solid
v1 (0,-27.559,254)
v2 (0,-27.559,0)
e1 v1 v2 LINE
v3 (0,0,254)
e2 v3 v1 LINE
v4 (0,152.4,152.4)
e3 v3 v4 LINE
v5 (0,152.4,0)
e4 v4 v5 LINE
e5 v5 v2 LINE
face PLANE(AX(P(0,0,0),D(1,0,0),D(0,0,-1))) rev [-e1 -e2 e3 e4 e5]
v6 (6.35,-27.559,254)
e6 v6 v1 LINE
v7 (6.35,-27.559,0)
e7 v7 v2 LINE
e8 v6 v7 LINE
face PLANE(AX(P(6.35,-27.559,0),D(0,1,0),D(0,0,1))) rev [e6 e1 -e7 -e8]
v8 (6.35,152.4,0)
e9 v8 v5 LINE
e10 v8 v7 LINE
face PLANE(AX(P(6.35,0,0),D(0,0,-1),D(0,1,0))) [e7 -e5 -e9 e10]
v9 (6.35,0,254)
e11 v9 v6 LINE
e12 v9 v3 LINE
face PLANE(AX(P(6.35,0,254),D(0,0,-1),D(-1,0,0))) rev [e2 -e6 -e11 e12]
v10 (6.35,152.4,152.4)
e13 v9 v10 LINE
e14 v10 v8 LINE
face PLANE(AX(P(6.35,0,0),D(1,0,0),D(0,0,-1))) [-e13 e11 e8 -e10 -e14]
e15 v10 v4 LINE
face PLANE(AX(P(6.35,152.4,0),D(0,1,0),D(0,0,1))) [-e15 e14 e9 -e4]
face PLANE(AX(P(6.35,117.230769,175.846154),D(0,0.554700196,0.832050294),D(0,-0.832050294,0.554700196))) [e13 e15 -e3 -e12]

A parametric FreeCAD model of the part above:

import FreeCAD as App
import Part
import Sketcher
from FreeCAD import Vector
Q = App.Units.Quantity

doc = App.newDocument("Part")
body = doc.addObject("PartDesign::Body", "Body")

sketch1 = doc.addObject("Sketcher::SketchObject", "Sketch")
body.addObject(sketch1)
sketch1.AttachmentSupport = (doc.YZ_Plane, [""])
sketch1.MapMode = "FlatFace"
sketch1.addGeometry([
    Part.LineSegment(Vector(-27.559, 0, 0), Vector(152.4, 0, 0)),
    Part.LineSegment(Vector(152.4, 0, 0), Vector(152.4, 152.4, 0)),
    Part.LineSegment(Vector(152.4, 152.4, 0), Vector(0, 254, 0)),
    Part.LineSegment(Vector(0, 254, 0), Vector(-27.559, 254, 0)),
    Part.LineSegment(Vector(-27.559, 254, 0), Vector(-27.559, 0, 0)),
], False)
sketch1.addConstraint([
    Sketcher.Constraint("Coincident", 0, 2, 1, 1),
    Sketcher.Constraint("Coincident", 1, 2, 2, 1),
    Sketcher.Constraint("Coincident", 2, 2, 3, 1),
    Sketcher.Constraint("Coincident", 3, 2, 4, 1),
    Sketcher.Constraint("Coincident", 4, 2, 0, 1),
    Sketcher.Constraint("Horizontal", 0),
    Sketcher.Constraint("Vertical", 1),
    Sketcher.Constraint("Horizontal", 3),
    Sketcher.Constraint("Vertical", 4),
    Sketcher.Constraint("PointOnObject", 0, 2, -1),
    Sketcher.Constraint("PointOnObject", 2, 2, -2),
    Sketcher.Constraint("DistanceY", 1, 1, 1, 2, Q("6 in")),
    Sketcher.Constraint("DistanceY", 4, 2, 4, 1, Q("10 in")),
    Sketcher.Constraint("DistanceX", -1, 1, 0, 2, Q("6 in")),
    Sketcher.Constraint("DistanceX", 0, 1, 0, 2, Q("7.085 in")),
])
pad1 = doc.addObject("PartDesign::Pad", "Pad")
body.addObject(pad1)
pad1.Profile = sketch1
pad1.Length = Q("0.25 in")

doc.recompute()
